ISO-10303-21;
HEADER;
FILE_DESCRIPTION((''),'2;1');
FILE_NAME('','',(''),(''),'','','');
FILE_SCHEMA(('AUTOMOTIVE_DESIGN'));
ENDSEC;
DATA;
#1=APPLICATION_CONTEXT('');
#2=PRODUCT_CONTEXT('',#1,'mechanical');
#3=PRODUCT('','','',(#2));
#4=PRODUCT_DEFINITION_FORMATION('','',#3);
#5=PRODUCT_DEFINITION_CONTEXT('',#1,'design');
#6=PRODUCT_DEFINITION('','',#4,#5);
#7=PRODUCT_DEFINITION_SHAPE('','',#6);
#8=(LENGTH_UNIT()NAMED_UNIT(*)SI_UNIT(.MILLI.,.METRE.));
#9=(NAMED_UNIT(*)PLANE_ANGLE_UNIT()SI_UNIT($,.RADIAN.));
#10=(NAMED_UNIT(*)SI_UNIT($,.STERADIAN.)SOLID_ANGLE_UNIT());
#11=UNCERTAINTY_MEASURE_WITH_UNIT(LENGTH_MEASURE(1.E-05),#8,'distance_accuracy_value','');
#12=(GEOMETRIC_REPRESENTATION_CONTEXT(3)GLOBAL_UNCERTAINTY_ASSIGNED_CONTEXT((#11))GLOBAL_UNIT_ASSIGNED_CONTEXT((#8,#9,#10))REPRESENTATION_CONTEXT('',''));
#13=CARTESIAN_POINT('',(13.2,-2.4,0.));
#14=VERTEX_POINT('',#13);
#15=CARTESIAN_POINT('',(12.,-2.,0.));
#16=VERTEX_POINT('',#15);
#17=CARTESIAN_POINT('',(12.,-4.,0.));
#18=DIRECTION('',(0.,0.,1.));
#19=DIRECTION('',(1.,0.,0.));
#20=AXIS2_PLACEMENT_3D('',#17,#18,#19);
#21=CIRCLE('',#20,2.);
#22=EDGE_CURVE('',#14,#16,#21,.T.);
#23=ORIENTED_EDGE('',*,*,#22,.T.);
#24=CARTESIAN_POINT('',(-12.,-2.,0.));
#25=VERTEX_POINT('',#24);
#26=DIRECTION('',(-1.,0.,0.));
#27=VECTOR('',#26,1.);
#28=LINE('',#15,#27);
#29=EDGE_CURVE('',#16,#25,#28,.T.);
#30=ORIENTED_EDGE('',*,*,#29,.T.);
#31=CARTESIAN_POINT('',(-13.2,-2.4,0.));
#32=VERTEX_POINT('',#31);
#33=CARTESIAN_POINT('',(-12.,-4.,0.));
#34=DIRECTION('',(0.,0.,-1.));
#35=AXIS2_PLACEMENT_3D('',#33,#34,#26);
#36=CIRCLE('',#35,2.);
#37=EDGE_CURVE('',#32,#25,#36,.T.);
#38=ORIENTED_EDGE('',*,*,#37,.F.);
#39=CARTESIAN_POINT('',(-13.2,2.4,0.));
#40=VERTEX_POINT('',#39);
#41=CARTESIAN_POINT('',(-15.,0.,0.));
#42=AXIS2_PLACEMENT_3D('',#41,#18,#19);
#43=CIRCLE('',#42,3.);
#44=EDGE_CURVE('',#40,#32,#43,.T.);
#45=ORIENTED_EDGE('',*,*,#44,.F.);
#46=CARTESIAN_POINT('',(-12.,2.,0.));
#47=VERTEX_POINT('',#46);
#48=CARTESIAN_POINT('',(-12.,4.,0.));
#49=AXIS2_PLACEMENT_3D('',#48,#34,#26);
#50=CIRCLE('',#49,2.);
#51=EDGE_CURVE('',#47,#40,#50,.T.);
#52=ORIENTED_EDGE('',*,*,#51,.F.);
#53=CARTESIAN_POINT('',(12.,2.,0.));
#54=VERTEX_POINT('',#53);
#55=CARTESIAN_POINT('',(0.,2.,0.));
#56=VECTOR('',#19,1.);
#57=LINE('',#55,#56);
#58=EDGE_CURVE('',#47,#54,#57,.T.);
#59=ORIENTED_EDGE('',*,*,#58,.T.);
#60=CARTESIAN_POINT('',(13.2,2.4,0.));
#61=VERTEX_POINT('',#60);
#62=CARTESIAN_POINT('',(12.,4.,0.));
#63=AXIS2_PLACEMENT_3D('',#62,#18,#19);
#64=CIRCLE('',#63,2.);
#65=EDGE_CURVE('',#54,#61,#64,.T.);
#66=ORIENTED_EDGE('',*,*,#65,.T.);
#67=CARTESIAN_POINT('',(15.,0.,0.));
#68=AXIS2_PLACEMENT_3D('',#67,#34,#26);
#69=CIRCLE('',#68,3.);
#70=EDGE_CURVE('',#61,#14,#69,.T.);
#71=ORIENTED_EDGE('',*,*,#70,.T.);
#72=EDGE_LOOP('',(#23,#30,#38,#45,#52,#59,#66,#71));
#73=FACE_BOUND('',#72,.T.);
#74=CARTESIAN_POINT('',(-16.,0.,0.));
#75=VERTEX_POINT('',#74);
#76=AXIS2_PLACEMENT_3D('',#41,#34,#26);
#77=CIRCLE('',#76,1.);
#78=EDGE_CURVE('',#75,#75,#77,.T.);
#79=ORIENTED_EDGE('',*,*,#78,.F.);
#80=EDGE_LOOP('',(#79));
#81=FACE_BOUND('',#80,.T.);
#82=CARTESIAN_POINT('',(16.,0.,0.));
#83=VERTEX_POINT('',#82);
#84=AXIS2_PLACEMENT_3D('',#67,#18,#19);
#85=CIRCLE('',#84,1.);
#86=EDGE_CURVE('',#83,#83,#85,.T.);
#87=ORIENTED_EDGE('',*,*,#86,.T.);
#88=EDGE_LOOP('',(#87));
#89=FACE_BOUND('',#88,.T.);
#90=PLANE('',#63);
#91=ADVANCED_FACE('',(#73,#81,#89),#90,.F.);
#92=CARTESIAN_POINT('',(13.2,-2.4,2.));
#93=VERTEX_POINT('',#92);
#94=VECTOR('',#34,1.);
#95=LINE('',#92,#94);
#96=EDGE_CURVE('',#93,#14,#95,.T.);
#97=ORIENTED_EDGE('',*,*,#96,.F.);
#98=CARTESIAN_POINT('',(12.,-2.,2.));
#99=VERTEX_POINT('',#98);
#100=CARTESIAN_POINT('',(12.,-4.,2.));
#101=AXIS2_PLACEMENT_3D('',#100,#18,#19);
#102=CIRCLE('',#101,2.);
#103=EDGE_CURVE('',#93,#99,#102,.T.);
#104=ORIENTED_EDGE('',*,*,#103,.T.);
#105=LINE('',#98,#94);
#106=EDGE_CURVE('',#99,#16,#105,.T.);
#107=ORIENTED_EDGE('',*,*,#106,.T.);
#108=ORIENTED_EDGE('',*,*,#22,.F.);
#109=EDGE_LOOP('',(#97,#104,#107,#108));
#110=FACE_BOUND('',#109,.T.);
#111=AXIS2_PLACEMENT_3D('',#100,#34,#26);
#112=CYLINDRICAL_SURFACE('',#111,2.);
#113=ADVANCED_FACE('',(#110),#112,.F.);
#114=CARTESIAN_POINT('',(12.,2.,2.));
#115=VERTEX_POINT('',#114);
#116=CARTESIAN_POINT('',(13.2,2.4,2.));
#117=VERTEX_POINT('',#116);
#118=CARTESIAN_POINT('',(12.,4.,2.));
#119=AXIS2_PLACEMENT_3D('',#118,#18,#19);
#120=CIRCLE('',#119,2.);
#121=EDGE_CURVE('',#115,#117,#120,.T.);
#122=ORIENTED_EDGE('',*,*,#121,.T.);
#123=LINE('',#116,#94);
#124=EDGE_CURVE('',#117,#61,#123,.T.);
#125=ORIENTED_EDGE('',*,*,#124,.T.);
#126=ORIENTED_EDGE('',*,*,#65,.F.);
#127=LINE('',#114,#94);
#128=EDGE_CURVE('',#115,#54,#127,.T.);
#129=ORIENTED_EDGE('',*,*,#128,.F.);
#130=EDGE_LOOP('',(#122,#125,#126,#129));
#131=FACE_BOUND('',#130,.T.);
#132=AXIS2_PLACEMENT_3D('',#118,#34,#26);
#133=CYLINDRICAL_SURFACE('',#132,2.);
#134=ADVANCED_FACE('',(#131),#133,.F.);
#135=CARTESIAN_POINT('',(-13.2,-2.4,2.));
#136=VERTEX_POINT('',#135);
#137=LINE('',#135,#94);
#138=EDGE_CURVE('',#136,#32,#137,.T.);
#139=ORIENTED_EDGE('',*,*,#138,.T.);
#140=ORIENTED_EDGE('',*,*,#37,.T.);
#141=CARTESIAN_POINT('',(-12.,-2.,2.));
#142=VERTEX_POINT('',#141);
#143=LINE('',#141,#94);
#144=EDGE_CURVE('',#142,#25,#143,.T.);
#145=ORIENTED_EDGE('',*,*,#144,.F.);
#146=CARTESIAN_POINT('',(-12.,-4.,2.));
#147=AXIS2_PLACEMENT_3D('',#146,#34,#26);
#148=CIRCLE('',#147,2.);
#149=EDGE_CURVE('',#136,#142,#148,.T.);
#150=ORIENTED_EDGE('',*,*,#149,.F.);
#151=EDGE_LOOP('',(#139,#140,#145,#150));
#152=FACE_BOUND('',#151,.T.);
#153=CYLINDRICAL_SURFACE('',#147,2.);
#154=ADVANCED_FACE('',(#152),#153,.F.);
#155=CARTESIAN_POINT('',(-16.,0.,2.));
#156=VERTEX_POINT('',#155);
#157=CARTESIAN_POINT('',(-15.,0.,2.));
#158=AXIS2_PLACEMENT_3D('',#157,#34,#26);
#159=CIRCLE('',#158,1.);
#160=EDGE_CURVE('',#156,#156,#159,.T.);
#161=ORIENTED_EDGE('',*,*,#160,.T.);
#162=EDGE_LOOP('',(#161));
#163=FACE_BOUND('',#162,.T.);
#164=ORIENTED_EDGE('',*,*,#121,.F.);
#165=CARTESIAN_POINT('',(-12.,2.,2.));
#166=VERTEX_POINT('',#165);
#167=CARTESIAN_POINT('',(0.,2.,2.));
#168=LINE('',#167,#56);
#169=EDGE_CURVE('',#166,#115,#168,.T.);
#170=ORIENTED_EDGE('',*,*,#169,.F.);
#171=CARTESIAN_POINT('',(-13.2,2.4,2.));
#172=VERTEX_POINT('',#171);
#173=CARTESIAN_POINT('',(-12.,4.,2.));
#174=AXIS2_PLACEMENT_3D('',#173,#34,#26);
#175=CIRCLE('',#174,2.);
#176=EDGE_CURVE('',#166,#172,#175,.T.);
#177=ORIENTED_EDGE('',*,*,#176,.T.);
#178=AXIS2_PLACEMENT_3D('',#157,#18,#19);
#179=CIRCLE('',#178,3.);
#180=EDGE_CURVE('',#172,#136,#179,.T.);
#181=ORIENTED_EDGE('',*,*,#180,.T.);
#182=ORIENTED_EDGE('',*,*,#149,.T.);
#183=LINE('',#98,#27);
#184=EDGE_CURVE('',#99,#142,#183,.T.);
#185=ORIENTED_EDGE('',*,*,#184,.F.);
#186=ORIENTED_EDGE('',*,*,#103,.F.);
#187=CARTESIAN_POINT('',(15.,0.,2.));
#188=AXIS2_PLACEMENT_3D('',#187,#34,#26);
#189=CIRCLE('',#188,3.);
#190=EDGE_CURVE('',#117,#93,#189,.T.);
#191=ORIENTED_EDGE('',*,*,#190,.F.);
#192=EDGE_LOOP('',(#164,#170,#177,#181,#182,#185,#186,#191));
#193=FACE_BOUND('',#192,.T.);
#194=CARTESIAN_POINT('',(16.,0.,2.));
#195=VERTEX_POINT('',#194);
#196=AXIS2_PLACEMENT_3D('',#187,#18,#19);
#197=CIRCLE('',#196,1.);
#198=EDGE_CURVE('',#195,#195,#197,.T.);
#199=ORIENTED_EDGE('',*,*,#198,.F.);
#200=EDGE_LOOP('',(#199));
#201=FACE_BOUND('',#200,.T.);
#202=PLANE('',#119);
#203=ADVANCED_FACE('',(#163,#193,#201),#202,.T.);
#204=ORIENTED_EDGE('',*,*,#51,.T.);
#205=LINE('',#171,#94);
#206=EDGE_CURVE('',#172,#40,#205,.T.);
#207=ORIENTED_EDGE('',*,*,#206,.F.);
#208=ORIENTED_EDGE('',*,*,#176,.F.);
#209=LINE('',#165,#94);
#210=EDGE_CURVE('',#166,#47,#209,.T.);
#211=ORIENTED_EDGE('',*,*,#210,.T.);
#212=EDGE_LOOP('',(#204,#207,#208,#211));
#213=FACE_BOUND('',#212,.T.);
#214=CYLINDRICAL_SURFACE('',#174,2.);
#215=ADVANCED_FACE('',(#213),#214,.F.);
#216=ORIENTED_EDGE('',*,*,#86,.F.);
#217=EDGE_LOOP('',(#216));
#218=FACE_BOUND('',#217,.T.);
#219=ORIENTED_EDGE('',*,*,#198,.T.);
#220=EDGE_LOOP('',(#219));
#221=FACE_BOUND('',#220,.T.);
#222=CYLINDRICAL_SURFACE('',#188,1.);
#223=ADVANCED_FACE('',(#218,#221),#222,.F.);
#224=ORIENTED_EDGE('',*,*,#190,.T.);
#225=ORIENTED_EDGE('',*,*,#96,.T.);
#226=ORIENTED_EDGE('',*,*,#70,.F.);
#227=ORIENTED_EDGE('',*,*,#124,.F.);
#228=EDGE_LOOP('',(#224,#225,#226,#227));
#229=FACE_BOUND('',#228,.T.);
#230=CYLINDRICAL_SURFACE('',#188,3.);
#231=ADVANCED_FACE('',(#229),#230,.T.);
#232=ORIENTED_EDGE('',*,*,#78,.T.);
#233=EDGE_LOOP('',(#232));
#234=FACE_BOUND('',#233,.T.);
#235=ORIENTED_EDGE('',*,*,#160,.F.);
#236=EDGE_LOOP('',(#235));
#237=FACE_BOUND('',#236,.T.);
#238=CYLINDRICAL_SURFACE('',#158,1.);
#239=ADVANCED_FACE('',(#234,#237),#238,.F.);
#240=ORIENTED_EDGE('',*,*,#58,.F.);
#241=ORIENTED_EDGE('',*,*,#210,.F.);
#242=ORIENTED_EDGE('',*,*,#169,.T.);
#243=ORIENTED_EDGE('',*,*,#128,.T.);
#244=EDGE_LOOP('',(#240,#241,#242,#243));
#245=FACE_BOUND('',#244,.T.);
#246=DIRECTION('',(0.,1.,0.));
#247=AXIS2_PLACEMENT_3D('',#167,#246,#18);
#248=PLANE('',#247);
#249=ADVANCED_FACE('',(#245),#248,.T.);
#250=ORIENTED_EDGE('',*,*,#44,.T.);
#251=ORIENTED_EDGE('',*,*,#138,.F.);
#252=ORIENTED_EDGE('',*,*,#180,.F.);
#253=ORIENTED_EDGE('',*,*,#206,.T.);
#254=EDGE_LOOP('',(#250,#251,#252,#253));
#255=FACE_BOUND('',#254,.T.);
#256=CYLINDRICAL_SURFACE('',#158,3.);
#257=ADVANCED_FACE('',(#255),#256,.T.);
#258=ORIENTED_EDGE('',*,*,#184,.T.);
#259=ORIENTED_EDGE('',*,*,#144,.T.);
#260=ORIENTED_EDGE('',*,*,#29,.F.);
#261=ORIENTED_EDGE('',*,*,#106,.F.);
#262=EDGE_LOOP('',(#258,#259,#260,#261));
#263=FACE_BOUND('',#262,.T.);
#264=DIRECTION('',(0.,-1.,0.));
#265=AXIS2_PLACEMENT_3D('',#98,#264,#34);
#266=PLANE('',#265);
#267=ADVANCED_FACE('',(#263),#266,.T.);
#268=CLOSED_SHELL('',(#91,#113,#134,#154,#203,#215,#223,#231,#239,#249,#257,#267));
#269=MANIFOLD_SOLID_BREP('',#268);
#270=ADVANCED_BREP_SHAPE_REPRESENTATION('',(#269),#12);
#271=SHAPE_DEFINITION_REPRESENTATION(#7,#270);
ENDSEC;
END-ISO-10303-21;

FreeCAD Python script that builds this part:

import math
import FreeCAD as App
import Part
import Sketcher

V = App.Vector
Q = App.Units.Quantity

doc = App.newDocument("Part")
params = doc.addObject("Spreadsheet::Sheet", "Params")
for row, (alias, value) in enumerate([
    ("sketch1_diameter", "2 mm"),
    ("sketch1_radius", "2 mm"),
    ("sketch1_radius2", "3 mm"),
    ("sketch1_width", "12 mm"),
    ("sketch1_height", "4 mm"),
    ("pad1_length", "2 mm"),
], start=1):
    params.set(f"A{row}", alias)
    params.set(f"B{row}", "=" + value)
    params.setAlias(f"B{row}", alias)

body = doc.addObject("PartDesign::Body", "Body")

# Sketch on XY plane
sketch1 = doc.addObject("Sketcher::SketchObject", "Sketch")
body.addObject(sketch1)
sketch1.AttachmentSupport = (doc.XY_Plane, [""])
sketch1.MapMode = "FlatFace"
sketch1.addGeometry(Part.LineSegment(V(0, 2, 0), V(0, -2, 0)), False)
sketch1.addGeometry(Part.LineSegment(V(0, -2, 0), V(12, -2, 0)), False)
sketch1.addGeometry(Part.ArcOfCircle(Part.Circle(V(12, -4, 0), V(0, 0, 1), 2), math.radians(53.130102), math.radians(90)), False)
sketch1.addGeometry(Part.ArcOfCircle(Part.Circle(V(15, 0, 0), V(0, 0, 1), 3), math.radians(-126.869898), math.radians(126.869898)), False)
sketch1.addGeometry(Part.ArcOfCircle(Part.Circle(V(12, 4, 0), V(0, 0, 1), 2), math.radians(-90), math.radians(-53.130102)), False)
sketch1.addGeometry(Part.LineSegment(V(12, 2, 0), V(0, 2, 0)), False)
sketch1.addGeometry(Part.Circle(V(15, 0, 0), V(0, 0, 1), 1), False)
sketch1.addConstraint(Sketcher.Constraint("Coincident", 0, 2, 1, 1))
sketch1.addConstraint(Sketcher.Constraint("Tangent", 1, 2, 2, 2))
sketch1.addConstraint(Sketcher.Constraint("Tangent", 2, 1, 3, 1))
sketch1.addConstraint(Sketcher.Constraint("Tangent", 3, 2, 4, 2))
sketch1.addConstraint(Sketcher.Constraint("Tangent", 4, 1, 5, 1))
sketch1.addConstraint(Sketcher.Constraint("Coincident", 5, 2, 0, 1))
sketch1.addConstraint(Sketcher.Constraint("Vertical", 0))
sketch1.addConstraint(Sketcher.Constraint("Horizontal", 1))
sketch1.addConstraint(Sketcher.Constraint("Horizontal", 5))
sketch1.addConstraint(Sketcher.Constraint("Coincident", 6, 3, 3, 3))
sketch1.addConstraint(Sketcher.Constraint("Equal", 2, 4))
sketch1.addConstraint(Sketcher.Constraint("Symmetric", 0, 2, 5, 2, -1, 1))
sketch1.addConstraint(Sketcher.Constraint("PointOnObject", 3, 3, -1))
sketch1.addConstraint(Sketcher.Constraint("Diameter", 6, Q("2 mm")))
sketch1.addConstraint(Sketcher.Constraint("Radius", 2, Q("2 mm")))
sketch1.addConstraint(Sketcher.Constraint("Radius", 3, Q("3 mm")))
sketch1.addConstraint(Sketcher.Constraint("DistanceX", 1, 1, 1, 2, Q("12 mm")))
sketch1.addConstraint(Sketcher.Constraint("DistanceY", 0, 2, 0, 1, Q("4 mm")))
sketch1.setExpression("Constraints[13]", "Params.sketch1_diameter")
sketch1.setExpression("Constraints[14]", "Params.sketch1_radius")
sketch1.setExpression("Constraints[15]", "Params.sketch1_radius2")
sketch1.setExpression("Constraints[16]", "Params.sketch1_width")
sketch1.setExpression("Constraints[17]", "Params.sketch1_height")
pad1 = doc.addObject("PartDesign::Pad", "Pad")
body.addObject(pad1)
pad1.Profile = sketch1
pad1.setExpression("Length", "Params.pad1_length")
doc.recompute()

mirrored = doc.addObject("PartDesign::Mirrored", "Mirrored")
body.addObject(mirrored)
mirrored.Originals = [pad1]
mirrored.MirrorPlane = (doc.YZ_Plane, [""])
body.Tip = mirrored

doc.recompute()
